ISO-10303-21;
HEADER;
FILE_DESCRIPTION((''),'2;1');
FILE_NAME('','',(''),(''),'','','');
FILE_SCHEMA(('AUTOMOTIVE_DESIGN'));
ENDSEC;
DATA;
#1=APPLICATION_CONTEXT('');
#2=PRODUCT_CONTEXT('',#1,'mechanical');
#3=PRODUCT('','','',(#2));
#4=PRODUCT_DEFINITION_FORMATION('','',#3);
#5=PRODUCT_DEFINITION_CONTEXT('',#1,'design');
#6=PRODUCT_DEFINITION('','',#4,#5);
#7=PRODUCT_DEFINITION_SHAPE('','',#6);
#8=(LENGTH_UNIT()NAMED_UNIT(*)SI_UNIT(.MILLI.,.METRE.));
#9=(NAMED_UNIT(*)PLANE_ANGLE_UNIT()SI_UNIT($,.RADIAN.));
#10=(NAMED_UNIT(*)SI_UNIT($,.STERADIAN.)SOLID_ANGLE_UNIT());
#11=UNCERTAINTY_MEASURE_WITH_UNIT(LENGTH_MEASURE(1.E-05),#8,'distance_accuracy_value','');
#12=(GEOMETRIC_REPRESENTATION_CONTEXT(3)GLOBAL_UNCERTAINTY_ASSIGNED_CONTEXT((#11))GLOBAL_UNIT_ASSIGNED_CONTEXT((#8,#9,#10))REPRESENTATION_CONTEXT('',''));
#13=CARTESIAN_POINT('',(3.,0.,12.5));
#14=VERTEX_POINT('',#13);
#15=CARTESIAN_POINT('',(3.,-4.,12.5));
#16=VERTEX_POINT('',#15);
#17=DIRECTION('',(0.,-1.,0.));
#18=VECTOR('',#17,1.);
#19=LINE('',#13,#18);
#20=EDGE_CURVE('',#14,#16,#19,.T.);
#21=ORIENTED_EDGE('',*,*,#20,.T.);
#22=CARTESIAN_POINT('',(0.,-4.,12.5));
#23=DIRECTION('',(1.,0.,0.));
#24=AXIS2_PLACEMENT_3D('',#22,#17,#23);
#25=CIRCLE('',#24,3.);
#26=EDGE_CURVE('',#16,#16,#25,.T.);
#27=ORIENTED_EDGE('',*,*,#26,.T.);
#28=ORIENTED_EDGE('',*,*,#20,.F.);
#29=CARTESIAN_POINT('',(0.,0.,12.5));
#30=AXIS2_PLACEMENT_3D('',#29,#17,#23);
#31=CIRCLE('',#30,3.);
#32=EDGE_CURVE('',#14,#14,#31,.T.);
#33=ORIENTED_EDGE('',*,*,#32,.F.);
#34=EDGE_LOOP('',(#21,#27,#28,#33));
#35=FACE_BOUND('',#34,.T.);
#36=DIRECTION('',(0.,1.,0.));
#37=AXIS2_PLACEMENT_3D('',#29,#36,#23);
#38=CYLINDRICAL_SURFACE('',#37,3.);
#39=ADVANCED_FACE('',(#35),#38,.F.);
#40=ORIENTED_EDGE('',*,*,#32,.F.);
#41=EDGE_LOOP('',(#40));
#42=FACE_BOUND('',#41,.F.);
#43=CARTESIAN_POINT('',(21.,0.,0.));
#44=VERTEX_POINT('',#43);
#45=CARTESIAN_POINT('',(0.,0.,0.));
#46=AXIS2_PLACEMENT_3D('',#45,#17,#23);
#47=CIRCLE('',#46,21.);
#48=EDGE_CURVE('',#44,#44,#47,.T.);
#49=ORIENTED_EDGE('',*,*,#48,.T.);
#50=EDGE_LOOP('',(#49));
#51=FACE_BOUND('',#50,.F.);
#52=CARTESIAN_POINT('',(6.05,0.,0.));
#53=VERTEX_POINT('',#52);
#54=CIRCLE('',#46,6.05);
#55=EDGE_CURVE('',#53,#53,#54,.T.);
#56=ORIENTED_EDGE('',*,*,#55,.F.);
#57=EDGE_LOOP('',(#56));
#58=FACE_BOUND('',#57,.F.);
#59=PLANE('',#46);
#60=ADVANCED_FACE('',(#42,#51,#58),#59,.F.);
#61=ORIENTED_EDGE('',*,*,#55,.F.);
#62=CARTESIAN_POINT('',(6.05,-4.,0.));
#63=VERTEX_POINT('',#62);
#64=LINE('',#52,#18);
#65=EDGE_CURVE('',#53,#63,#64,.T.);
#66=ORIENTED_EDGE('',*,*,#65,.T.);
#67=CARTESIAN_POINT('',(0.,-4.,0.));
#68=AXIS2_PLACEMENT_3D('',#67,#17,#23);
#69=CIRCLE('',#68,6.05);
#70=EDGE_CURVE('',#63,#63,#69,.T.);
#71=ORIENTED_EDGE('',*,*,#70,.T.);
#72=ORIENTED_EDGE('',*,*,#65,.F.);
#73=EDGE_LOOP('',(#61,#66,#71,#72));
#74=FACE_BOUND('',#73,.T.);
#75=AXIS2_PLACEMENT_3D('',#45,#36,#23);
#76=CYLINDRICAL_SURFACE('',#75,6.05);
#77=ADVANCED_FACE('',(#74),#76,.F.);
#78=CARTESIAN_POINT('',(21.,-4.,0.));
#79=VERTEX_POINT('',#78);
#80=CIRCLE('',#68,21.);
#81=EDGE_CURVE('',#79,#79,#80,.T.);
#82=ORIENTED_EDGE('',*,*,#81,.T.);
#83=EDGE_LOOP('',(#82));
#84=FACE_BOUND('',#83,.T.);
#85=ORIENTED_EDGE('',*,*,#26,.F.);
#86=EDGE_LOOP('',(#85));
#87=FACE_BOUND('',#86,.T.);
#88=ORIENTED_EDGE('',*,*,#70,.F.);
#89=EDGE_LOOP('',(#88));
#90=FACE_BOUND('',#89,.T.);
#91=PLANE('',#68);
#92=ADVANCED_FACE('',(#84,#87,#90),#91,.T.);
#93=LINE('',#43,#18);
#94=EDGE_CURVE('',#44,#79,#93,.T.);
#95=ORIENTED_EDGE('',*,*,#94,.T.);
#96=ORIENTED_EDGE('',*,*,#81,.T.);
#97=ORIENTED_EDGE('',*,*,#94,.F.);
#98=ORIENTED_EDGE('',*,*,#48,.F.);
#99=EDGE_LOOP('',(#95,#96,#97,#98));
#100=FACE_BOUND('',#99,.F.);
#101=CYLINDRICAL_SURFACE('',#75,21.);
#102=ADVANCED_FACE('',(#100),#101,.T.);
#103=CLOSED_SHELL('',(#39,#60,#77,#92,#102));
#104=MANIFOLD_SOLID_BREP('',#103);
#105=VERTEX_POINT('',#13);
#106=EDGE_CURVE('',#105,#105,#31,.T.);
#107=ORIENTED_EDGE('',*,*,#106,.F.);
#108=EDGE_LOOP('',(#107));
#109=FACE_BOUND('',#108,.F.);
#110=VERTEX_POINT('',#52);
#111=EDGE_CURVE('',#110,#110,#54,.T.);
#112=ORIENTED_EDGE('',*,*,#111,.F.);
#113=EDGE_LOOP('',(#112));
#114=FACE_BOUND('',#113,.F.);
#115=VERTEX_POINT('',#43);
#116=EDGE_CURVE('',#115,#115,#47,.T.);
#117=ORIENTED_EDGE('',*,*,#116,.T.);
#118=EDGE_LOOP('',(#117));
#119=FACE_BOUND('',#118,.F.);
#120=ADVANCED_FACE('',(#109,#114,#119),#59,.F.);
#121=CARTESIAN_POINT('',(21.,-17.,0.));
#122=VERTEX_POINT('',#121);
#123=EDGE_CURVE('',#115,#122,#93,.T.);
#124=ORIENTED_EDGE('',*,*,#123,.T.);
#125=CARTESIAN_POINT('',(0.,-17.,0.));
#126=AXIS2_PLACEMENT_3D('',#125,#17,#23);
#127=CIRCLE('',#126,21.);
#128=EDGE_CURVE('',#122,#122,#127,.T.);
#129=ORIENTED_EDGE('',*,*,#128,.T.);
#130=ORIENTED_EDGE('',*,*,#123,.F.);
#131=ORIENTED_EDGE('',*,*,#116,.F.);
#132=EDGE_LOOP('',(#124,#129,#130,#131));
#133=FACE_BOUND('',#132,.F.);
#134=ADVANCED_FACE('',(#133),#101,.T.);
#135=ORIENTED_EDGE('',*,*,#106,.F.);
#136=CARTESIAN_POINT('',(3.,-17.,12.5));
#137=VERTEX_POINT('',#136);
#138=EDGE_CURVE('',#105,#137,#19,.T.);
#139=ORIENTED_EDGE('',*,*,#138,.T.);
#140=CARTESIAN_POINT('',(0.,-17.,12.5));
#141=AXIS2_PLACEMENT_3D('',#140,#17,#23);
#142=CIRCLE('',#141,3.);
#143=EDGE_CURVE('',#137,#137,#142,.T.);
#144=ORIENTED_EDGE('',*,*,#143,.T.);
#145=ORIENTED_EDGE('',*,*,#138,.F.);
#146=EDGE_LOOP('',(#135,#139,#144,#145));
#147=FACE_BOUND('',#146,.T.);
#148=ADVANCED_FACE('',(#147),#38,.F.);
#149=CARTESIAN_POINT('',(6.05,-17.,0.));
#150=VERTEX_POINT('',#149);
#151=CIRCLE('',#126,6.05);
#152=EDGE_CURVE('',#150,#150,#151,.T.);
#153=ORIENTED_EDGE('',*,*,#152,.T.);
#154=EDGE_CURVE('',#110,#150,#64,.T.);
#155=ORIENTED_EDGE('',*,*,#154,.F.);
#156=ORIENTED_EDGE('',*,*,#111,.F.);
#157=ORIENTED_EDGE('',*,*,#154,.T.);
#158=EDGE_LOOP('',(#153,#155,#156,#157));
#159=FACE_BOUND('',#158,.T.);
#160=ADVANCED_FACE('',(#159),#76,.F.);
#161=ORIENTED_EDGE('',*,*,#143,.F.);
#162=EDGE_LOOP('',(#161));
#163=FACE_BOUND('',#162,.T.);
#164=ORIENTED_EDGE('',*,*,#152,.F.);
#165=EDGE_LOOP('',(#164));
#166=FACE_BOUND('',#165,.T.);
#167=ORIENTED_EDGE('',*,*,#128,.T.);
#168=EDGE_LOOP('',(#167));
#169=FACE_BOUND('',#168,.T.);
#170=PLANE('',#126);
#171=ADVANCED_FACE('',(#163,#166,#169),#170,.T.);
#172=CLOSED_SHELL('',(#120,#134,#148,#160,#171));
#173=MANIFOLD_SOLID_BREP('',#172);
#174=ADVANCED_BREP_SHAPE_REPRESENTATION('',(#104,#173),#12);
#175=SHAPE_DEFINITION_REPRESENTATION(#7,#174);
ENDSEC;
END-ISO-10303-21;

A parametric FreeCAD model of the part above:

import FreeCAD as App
import Part
import Sketcher
from FreeCAD import Vector

doc = App.newDocument("Part")
body = doc.addObject("PartDesign::Body", "Body")

sketch1 = doc.addObject("Sketcher::SketchObject", "Sketch")
body.addObject(sketch1)
sketch1.AttachmentSupport = (doc.XZ_Plane, [""])
sketch1.MapMode = "FlatFace"
sketch1.addGeometry([
    Part.Circle(Vector(0, 0, 0), Vector(0, 0, 1), 21),
    Part.Circle(Vector(0, 0, 0), Vector(0, 0, 1), 6.05),
    Part.Circle(Vector(0, 12.5, 0), Vector(0, 0, 1), 3),
], False)
sketch1.addConstraint([
    Sketcher.Constraint("Coincident", 0, 3, -1, 1),
    Sketcher.Constraint("Coincident", 1, 3, -1, 1),
    Sketcher.Constraint("PointOnObject", 2, 3, -2),
    Sketcher.Constraint("Diameter", 0, 42.0),
    Sketcher.Constraint("Diameter", 2, 6.0),
    Sketcher.Constraint("Diameter", 1, 12.1),
    Sketcher.Constraint("DistanceY", -1, 1, 2, 3, 12.5),
])
pad1 = doc.addObject("PartDesign::Pad", "Pad")
body.addObject(pad1)
pad1.Profile = sketch1
pad1.Length = 17
body2 = doc.addObject("PartDesign::Body", "Body001")

sketch2 = doc.addObject("Sketcher::SketchObject", "Sketch001")
body2.addObject(sketch2)
sketch2.AttachmentSupport = (doc.getObject("XZ_Plane001"), [""])
sketch2.MapMode = "FlatFace"
sketch2.addGeometry([
    Part.Circle(Vector(0, 0, 0), Vector(0, 0, 1), 21),
    Part.Circle(Vector(0, 0, 0), Vector(0, 0, 1), 6.05),
    Part.Circle(Vector(0, 12.5, 0), Vector(0, 0, 1), 3),
], False)
sketch2.addConstraint([
    Sketcher.Constraint("Coincident", 0, 3, -1, 1),
    Sketcher.Constraint("Coincident", 1, 3, -1, 1),
    Sketcher.Constraint("PointOnObject", 2, 3, -2),
    Sketcher.Constraint("Diameter", 0, 42.0),
    Sketcher.Constraint("Diameter", 2, 6.0),
    Sketcher.Constraint("Diameter", 1, 12.1),
    Sketcher.Constraint("DistanceY", -1, 1, 2, 3, 12.5),
])
pad2 = doc.addObject("PartDesign::Pad", "Pad001")
body2.addObject(pad2)
pad2.Profile = sketch2
pad2.Length = 4

doc.recompute()
